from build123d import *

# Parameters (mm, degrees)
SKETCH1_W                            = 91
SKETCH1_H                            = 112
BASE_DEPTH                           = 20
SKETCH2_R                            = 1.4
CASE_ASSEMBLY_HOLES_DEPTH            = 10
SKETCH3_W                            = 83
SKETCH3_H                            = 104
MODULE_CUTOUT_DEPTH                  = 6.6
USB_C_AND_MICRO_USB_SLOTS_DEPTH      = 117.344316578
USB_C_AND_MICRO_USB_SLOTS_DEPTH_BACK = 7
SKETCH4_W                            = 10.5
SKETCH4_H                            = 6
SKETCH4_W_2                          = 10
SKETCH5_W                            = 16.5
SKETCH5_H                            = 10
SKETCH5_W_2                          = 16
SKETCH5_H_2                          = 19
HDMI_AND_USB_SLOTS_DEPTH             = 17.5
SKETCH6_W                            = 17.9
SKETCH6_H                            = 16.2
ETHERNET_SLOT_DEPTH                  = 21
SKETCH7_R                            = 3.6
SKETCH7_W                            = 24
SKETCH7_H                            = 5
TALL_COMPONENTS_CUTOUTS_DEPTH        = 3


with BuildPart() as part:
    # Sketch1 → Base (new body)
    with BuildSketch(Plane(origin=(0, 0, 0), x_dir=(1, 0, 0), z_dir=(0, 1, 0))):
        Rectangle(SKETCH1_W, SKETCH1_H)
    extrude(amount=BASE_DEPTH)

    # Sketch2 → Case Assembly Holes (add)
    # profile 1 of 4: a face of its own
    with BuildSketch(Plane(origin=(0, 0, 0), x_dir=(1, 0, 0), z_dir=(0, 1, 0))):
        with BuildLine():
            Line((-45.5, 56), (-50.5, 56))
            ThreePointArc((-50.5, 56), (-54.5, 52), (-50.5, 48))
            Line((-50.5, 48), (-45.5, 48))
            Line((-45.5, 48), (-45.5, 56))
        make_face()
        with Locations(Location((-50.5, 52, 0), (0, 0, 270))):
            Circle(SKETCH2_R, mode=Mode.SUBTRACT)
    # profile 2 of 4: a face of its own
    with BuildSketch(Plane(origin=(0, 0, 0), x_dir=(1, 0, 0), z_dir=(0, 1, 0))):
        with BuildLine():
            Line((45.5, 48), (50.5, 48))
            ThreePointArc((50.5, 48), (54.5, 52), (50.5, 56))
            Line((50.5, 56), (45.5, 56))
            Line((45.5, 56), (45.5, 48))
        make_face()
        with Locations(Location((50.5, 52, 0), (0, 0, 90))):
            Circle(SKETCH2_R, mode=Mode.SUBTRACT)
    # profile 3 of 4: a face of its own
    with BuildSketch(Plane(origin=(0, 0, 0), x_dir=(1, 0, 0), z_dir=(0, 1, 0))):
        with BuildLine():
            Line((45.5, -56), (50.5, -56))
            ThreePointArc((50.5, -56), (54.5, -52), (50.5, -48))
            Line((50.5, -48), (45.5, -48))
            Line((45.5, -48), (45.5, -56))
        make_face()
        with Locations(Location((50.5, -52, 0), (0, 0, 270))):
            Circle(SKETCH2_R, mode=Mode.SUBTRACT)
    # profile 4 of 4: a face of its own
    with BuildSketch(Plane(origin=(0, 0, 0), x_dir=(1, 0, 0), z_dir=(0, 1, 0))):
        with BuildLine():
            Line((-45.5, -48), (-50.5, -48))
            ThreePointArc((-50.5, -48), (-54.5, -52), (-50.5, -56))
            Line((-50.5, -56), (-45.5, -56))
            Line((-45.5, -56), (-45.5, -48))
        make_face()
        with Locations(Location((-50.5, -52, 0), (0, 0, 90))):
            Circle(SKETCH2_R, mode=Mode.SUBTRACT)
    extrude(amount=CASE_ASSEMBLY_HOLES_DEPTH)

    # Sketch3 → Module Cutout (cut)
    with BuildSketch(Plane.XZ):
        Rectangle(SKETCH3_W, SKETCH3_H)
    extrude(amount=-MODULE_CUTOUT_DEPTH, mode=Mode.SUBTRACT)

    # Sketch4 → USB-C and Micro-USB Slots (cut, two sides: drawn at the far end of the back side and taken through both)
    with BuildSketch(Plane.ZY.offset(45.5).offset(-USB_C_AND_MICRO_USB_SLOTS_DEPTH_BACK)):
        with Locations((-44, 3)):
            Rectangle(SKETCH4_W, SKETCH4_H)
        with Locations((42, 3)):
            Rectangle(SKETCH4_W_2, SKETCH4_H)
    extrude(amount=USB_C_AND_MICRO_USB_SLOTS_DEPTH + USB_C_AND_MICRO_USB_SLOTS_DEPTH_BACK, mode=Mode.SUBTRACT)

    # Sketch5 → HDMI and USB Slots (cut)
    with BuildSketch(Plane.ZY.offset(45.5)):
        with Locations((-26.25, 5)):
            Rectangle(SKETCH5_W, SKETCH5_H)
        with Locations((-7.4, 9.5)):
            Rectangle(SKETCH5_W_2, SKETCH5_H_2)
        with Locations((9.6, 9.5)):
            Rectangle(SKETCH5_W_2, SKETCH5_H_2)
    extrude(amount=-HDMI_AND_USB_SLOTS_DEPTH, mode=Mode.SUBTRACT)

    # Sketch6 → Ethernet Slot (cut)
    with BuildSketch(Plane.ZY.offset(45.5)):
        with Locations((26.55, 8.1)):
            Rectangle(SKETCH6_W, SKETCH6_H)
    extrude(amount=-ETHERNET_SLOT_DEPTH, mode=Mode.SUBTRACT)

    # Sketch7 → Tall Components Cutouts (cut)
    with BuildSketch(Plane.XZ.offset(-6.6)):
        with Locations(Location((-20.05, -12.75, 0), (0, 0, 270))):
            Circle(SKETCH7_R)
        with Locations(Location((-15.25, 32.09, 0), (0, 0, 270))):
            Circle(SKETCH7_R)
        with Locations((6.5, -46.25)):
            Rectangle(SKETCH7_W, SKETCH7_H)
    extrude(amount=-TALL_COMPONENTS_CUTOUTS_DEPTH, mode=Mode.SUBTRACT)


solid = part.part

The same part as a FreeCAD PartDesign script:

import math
import FreeCAD as App
import Part
import Sketcher
from FreeCAD import Vector


def add_polygon(sketch, points):
    """Adds a closed chain of lines whose ends are joined by coincident constraints."""
    first, n = sketch.GeometryCount, len(points)
    for a, b in zip(points, points[1:] + points[:1]):
        sketch.addGeometry(Part.LineSegment(App.Vector(*a, 0), App.Vector(*b, 0)), False)
    for i in range(n):
        sketch.addConstraint(Sketcher.Constraint("Coincident", first + i, 2, first + (i + 1) % n, 1))

doc = App.newDocument("Part")
body = doc.addObject("PartDesign::Body", "Body")

# Sketch on XZ plane
sketch1 = doc.addObject("Sketcher::SketchObject", "Sketch")
body.addObject(sketch1)
sketch1.AttachmentSupport = (doc.XZ_Plane, [""])
sketch1.MapMode = "FlatFace"
add_polygon(sketch1, [(-46, -56), (-46, 56), (46, 56), (46, -56)])  # lines 0-3
sketch1.addConstraint(Sketcher.Constraint("Vertical", 0))
sketch1.addConstraint(Sketcher.Constraint("Horizontal", 1))
sketch1.addConstraint(Sketcher.Constraint("Vertical", 2))
sketch1.addConstraint(Sketcher.Constraint("Horizontal", 3))
sketch1.addConstraint(Sketcher.Constraint("Symmetric", 0, 2, 2, 2, -1, 1))
sketch1.addConstraint(Sketcher.Constraint("DistanceX", 1, 1, 1, 2, 91.0))
sketch1.addConstraint(Sketcher.Constraint("DistanceY", 0, 1, 0, 2, 112.0))
pad1 = doc.addObject("PartDesign::Pad", "Pad")
body.addObject(pad1)
pad1.Profile = sketch1
pad1.Length = 20
pad1.Reversed = True

# Sketch on XZ plane
sketch2 = doc.addObject("Sketcher::SketchObject", "Sketch001")
body.addObject(sketch2)
sketch2.AttachmentSupport = (doc.XZ_Plane, [""])
sketch2.MapMode = "FlatFace"
sketch2.addGeometry(Part.LineSegment(Vector(-45.5, -56, 0), Vector(-50.5, -56, 0)), False)
sketch2.addGeometry(Part.ArcOfCircle(Part.Circle(Vector(-50.5, -52, 0), Vector(0, 0, 1), 4), math.radians(90), math.radians(270)), False)
sketch2.addGeometry(Part.LineSegment(Vector(-50.5, -48, 0), Vector(-45.5, -48, 0)), False)
sketch2.addGeometry(Part.LineSegment(Vector(-45.5, -48, 0), Vector(-45.5, -56, 0)), False)
sketch2.addGeometry(Part.Circle(Vector(-50.5, -52, 0), Vector(0, 0, 1), 1.4), False)
sketch2.addGeometry(Part.LineSegment(Vector(45.5, -48, 0), Vector(50.5, -48, 0)), False)
sketch2.addGeometry(Part.ArcOfCircle(Part.Circle(Vector(50.5, -52, 0), Vector(0, 0, 1), 4), math.radians(-90), math.radians(90)), False)
sketch2.addGeometry(Part.LineSegment(Vector(50.5, -56, 0), Vector(45.5, -56, 0)), False)
sketch2.addGeometry(Part.LineSegment(Vector(45.5, -56, 0), Vector(45.5, -48, 0)), False)
sketch2.addGeometry(Part.Circle(Vector(50.5, -52, 0), Vector(0, 0, 1), 1.4), False)
sketch2.addGeometry(Part.LineSegment(Vector(45.5, 56, 0), Vector(50.5, 56, 0)), False)
sketch2.addGeometry(Part.ArcOfCircle(Part.Circle(Vector(50.5, 52, 0), Vector(0, 0, 1), 4), math.radians(-90), math.radians(90)), False)
sketch2.addGeometry(Part.LineSegment(Vector(50.5, 48, 0), Vector(45.5, 48, 0)), False)
sketch2.addGeometry(Part.LineSegment(Vector(45.5, 48, 0), Vector(45.5, 56, 0)), False)
sketch2.addGeometry(Part.Circle(Vector(50.5, 52, 0), Vector(0, 0, 1), 1.4), False)
sketch2.addGeometry(Part.LineSegment(Vector(-45.5, 48, 0), Vector(-50.5, 48, 0)), False)
sketch2.addGeometry(Part.ArcOfCircle(Part.Circle(Vector(-50.5, 52, 0), Vector(0, 0, 1), 4), math.radians(90), math.radians(270)), False)
sketch2.addGeometry(Part.LineSegment(Vector(-50.5, 56, 0), Vector(-45.5, 56, 0)), False)
sketch2.addGeometry(Part.LineSegment(Vector(-45.5, 56, 0), Vector(-45.5, 48, 0)), False)
sketch2.addGeometry(Part.Circle(Vector(-50.5, 52, 0), Vector(0, 0, 1), 1.4), False)
sketch2.addConstraint(Sketcher.Constraint("Tangent", 0, 2, 1, 2))
sketch2.addConstraint(Sketcher.Constraint("Tangent", 1, 1, 2, 1))
sketch2.addConstraint(Sketcher.Constraint("Coincident", 2, 2, 3, 1))
sketch2.addConstraint(Sketcher.Constraint("Coincident", 3, 2, 0, 1))
sketch2.addConstraint(Sketcher.Constraint("Tangent", 5, 2, 6, 2))
sketch2.addConstraint(Sketcher.Constraint("Tangent", 6, 1, 7, 1))
sketch2.addConstraint(Sketcher.Constraint("Coincident", 7, 2, 8, 1))
sketch2.addConstraint(Sketcher.Constraint("Coincident", 8, 2, 5, 1))
sketch2.addConstraint(Sketcher.Constraint("Tangent", 10, 2, 11, 2))
sketch2.addConstraint(Sketcher.Constraint("Tangent", 11, 1, 12, 1))
sketch2.addConstraint(Sketcher.Constraint("Coincident", 12, 2, 13, 1))
sketch2.addConstraint(Sketcher.Constraint("Coincident", 13, 2, 10, 1))
sketch2.addConstraint(Sketcher.Constraint("Tangent", 15, 2, 16, 2))
sketch2.addConstraint(Sketcher.Constraint("Tangent", 16, 1, 17, 1))
sketch2.addConstraint(Sketcher.Constraint("Coincident", 17, 2, 18, 1))
sketch2.addConstraint(Sketcher.Constraint("Coincident", 18, 2, 15, 1))
sketch2.addConstraint(Sketcher.Constraint("Horizontal", 0))
sketch2.addConstraint(Sketcher.Constraint("Horizontal", 2))
sketch2.addConstraint(Sketcher.Constraint("Vertical", 3))
sketch2.addConstraint(Sketcher.Constraint("Horizontal", 5))
sketch2.addConstraint(Sketcher.Constraint("Horizontal", 7))
sketch2.addConstraint(Sketcher.Constraint("Vertical", 8))
sketch2.addConstraint(Sketcher.Constraint("Horizontal", 10))
sketch2.addConstraint(Sketcher.Constraint("Horizontal", 12))
sketch2.addConstraint(Sketcher.Constraint("Vertical", 13))
sketch2.addConstraint(Sketcher.Constraint("Horizontal", 15))
sketch2.addConstraint(Sketcher.Constraint("Horizontal", 17))
sketch2.addConstraint(Sketcher.Constraint("Vertical", 18))
sketch2.addConstraint(Sketcher.Constraint("Coincident", 4, 3, 1, 3))
sketch2.addConstraint(Sketcher.Constraint("Coincident", 9, 3, 6, 3))
sketch2.addConstraint(Sketcher.Constraint("Coincident", 14, 3, 11, 3))
sketch2.addConstraint(Sketcher.Constraint("Coincident", 19, 3, 16, 3))
sketch2.addConstraint(Sketcher.Constraint("Equal", 1, 6))
sketch2.addConstraint(Sketcher.Constraint("Equal", 4, 9))
sketch2.addConstraint(Sketcher.Constraint("Equal", 6, 11))
sketch2.addConstraint(Sketcher.Constraint("Equal", 9, 14))
sketch2.addConstraint(Sketcher.Constraint("Equal", 11, 16))
sketch2.addConstraint(Sketcher.Constraint("Equal", 14, 19))
sketch2.addConstraint(Sketcher.Constraint("Symmetric", 1, 3, 11, 3, -1, 1))
sketch2.addConstraint(Sketcher.Constraint("Symmetric", 6, 3, 16, 3, -1, 1))
sketch2.addConstraint(Sketcher.Constraint("Symmetric", 1, 3, 6, 3, -2))
sketch2.addConstraint(Sketcher.Constraint("Vertical", 8, 2, 12, 2))
sketch2.addConstraint(Sketcher.Constraint("Vertical", 3, 2, 17, 2))
sketch2.addConstraint(Sketcher.Constraint("Equal", 2, 5))
sketch2.addConstraint(Sketcher.Constraint("Radius", 1, 4.0))
sketch2.addConstraint(Sketcher.Constraint("Diameter", 4, 2.8))
sketch2.addConstraint(Sketcher.Constraint("DistanceX", 0, 2, 0, 1, 5.0))
sketch2.addConstraint(Sketcher.Constraint("DistanceY", 1, 3, -1, 1, 52.0))
sketch2.addConstraint(Sketcher.Constraint("DistanceX", 1, 3, 6, 3, 101.0))
pad2 = doc.addObject("PartDesign::Pad", "Pad001")
body.addObject(pad2)
pad2.Profile = sketch2
pad2.Length = 10
pad2.Reversed = True

# Sketch on XZ plane
sketch3 = doc.addObject("Sketcher::SketchObject", "Sketch002")
body.addObject(sketch3)
sketch3.AttachmentSupport = (doc.XZ_Plane, [""])
sketch3.MapMode = "FlatFace"
add_polygon(sketch3, [(-42, 52), (-42, -52), (42, -52), (42, 52)])  # lines 0-3
sketch3.addConstraint(Sketcher.Constraint("Vertical", 0))
sketch3.addConstraint(Sketcher.Constraint("Horizontal", 1))
sketch3.addConstraint(Sketcher.Constraint("Vertical", 2))
sketch3.addConstraint(Sketcher.Constraint("Horizontal", 3))
sketch3.addConstraint(Sketcher.Constraint("Symmetric", 0, 2, 2, 2, -1, 1))
sketch3.addConstraint(Sketcher.Constraint("DistanceX", 1, 1, 1, 2, 83.0))
sketch3.addConstraint(Sketcher.Constraint("DistanceY", 0, 2, 0, 1, 104.0))
pocket1 = doc.addObject("PartDesign::Pocket", "Pocket")
body.addObject(pocket1)
pocket1.Profile = sketch3
pocket1.Length = 6.6

# Sketch on YZ plane
sketch4 = doc.addObject("Sketcher::SketchObject", "Sketch003")
body.addObject(sketch4)
sketch4.AttachmentSupport = (doc.YZ_Plane, [""])
sketch4.MapMode = "FlatFace"
sketch4.AttachmentOffset = App.Placement(Vector(0, 0, -45.5), App.Rotation())
add_polygon(sketch4, [(6, -49), (0, -49), (0, -39), (6, -39)])  # lines 0-3
add_polygon(sketch4, [(6, 37), (0, 37), (0, 47), (6, 47)])  # lines 4-7
sketch4.addConstraint(Sketcher.Constraint("Horizontal", 0))
sketch4.addConstraint(Sketcher.Constraint("Vertical", 1))
sketch4.addConstraint(Sketcher.Constraint("Horizontal", 2))
sketch4.addConstraint(Sketcher.Constraint("Vertical", 3))
sketch4.addConstraint(Sketcher.Constraint("Horizontal", 4))
sketch4.addConstraint(Sketcher.Constraint("Vertical", 5))
sketch4.addConstraint(Sketcher.Constraint("Horizontal", 6))
sketch4.addConstraint(Sketcher.Constraint("Vertical", 7))
sketch4.addConstraint(Sketcher.Constraint("PointOnObject", 0, 2, -2))
sketch4.addConstraint(Sketcher.Constraint("PointOnObject", 4, 2, -2))
sketch4.addConstraint(Sketcher.Constraint("Vertical", 3, 2, 6, 2))
sketch4.addConstraint(Sketcher.Constraint("DistanceX", 0, 2, 0, 1, 6.0))
sketch4.addConstraint(Sketcher.Constraint("DistanceY", 5, 1, 5, 2, 10.0))
sketch4.addConstraint(Sketcher.Constraint("DistanceY", 1, 1, 1, 2, 10.5))
sketch4.addConstraint(Sketcher.Constraint("DistanceY", -1, 1, 4, 2, 37.0))
sketch4.addConstraint(Sketcher.Constraint("DistanceY", 0, 2, -1, 1, 49.25))
pocket2 = doc.addObject("PartDesign::Pocket", "Pocket001")
body.addObject(pocket2)
pocket2.Profile = sketch4
pocket2.Type = "TwoLengths"
pocket2.Length = 117.344317
pocket2.Length2 = 7

# Sketch on YZ plane
sketch5 = doc.addObject("Sketcher::SketchObject", "Sketch004")
body.addObject(sketch5)
sketch5.AttachmentSupport = (doc.YZ_Plane, [""])
sketch5.MapMode = "FlatFace"
sketch5.AttachmentOffset = App.Placement(Vector(0, 0, -45.5), App.Rotation())
add_polygon(sketch5, [(10, -34), (0, -34), (0, -18), (10, -18)])  # lines 0-3
add_polygon(sketch5, [(19, -15), (0, -15), (0, 1), (19, 1)])  # lines 4-7
add_polygon(sketch5, [(19, 2), (0, 2), (0, 18), (19, 18)])  # lines 8-11
sketch5.addConstraint(Sketcher.Constraint("Horizontal", 0))
sketch5.addConstraint(Sketcher.Constraint("Vertical", 1))
sketch5.addConstraint(Sketcher.Constraint("Horizontal", 2))
sketch5.addConstraint(Sketcher.Constraint("Vertical", 3))
sketch5.addConstraint(Sketcher.Constraint("Horizontal", 4))
sketch5.addConstraint(Sketcher.Constraint("Vertical", 5))
sketch5.addConstraint(Sketcher.Constraint("Horizontal", 6))
sketch5.addConstraint(Sketcher.Constraint("Vertical", 7))
sketch5.addConstraint(Sketcher.Constraint("Horizontal", 8))
sketch5.addConstraint(Sketcher.Constraint("Vertical", 9))
sketch5.addConstraint(Sketcher.Constraint("Horizontal", 10))
sketch5.addConstraint(Sketcher.Constraint("Vertical", 11))
sketch5.addConstraint(Sketcher.Constraint("PointOnObject", 0, 2, -2))
sketch5.addConstraint(Sketcher.Constraint("PointOnObject", 4, 2, -2))
sketch5.addConstraint(Sketcher.Constraint("PointOnObject", 8, 2, -2))
sketch5.addConstraint(Sketcher.Constraint("Vertical", 7, 2, 10, 2))
sketch5.addConstraint(Sketcher.Constraint("Equal", 7, 9))
sketch5.addConstraint(Sketcher.Constraint("DistanceX", 0, 2, 0, 1, 10.0))
sketch5.addConstraint(Sketcher.Constraint("DistanceX", 4, 2, 4, 1, 19.0))
sketch5.addConstraint(Sketcher.Constraint("DistanceY", 5, 1, 5, 2, 16.0))
sketch5.addConstraint(Sketcher.Constraint("DistanceY", 1, 1, 1, 2, 16.5))
sketch5.addConstraint(Sketcher.Constraint("DistanceY", 1, 2, -1, 1, 18.0))
sketch5.addConstraint(Sketcher.Constraint("DistanceY", 5, 2, 8, 2, 1.0))
sketch5.addConstraint(Sketcher.Constraint("DistanceY", 4, 2, -1, 1, 15.4))
pocket3 = doc.addObject("PartDesign::Pocket", "Pocket002")
body.addObject(pocket3)
pocket3.Profile = sketch5
pocket3.Length = 17.5
pocket3.Reversed = True

# Sketch on YZ plane
sketch6 = doc.addObject("Sketcher::SketchObject", "Sketch005")
body.addObject(sketch6)
sketch6.AttachmentSupport = (doc.YZ_Plane, [""])
sketch6.MapMode = "FlatFace"
sketch6.AttachmentOffset = App.Placement(Vector(0, 0, -45.5), App.Rotation())
add_polygon(sketch6, [(16, 18), (0, 18), (0, 36), (16, 36)])  # lines 0-3
sketch6.addConstraint(Sketcher.Constraint("Horizontal", 0))
sketch6.addConstraint(Sketcher.Constraint("Vertical", 1))
sketch6.addConstraint(Sketcher.Constraint("Horizontal", 2))
sketch6.addConstraint(Sketcher.Constraint("Vertical", 3))
sketch6.addConstraint(Sketcher.Constraint("PointOnObject", 0, 2, -2))
sketch6.addConstraint(Sketcher.Constraint("DistanceX", 0, 2, 0, 1, 16.2))
sketch6.addConstraint(Sketcher.Constraint("DistanceY", 1, 1, 1, 2, 17.9))
sketch6.addConstraint(Sketcher.Constraint("DistanceY", -1, 1, 0, 2, 17.6))
pocket4 = doc.addObject("PartDesign::Pocket", "Pocket003")
body.addObject(pocket4)
pocket4.Profile = sketch6
pocket4.Length = 21
pocket4.Reversed = True

# Sketch on XZ plane
sketch7 = doc.addObject("Sketcher::SketchObject", "Sketch006")
body.addObject(sketch7)
sketch7.AttachmentSupport = (doc.XZ_Plane, [""])
sketch7.MapMode = "FlatFace"
sketch7.AttachmentOffset = App.Placement(Vector(0, 0, -6.6), App.Rotation())
sketch7.addGeometry(Part.Circle(Vector(-20.1, -12.8, 0), Vector(0, 0, 1), 3.6), False)  # 0
sketch7.addGeometry(Part.Circle(Vector(-15.2, 32.1, 0), Vector(0, 0, 1), 3.6), False)  # 1
add_polygon(sketch7, [(-5.5, -43.8), (-5.5, -48.8), (18.5, -48.8), (18.5, -43.8)])  # lines 2-5
sketch7.addConstraint(Sketcher.Constraint("Vertical", 2))
sketch7.addConstraint(Sketcher.Constraint("Horizontal", 3))
sketch7.addConstraint(Sketcher.Constraint("Vertical", 4))
sketch7.addConstraint(Sketcher.Constraint("Horizontal", 5))
sketch7.addConstraint(Sketcher.Constraint("Equal", 0, 1))
sketch7.addConstraint(Sketcher.Constraint("Diameter", 0, 7.2))
sketch7.addConstraint(Sketcher.Constraint("DistanceX", 3, 1, 3, 2, 24.0))
sketch7.addConstraint(Sketcher.Constraint("DistanceY", 2, 2, 2, 1, 5.0))
sketch7.addConstraint(Sketcher.Constraint("DistanceY", 2, 2, 0, 3, 36.0))
sketch7.addConstraint(Sketcher.Constraint("DistanceX", 2, 2, -1, 1, 5.5))
sketch7.addConstraint(Sketcher.Constraint("DistanceX", 0, 3, 1, 3, 4.8))
sketch7.addConstraint(Sketcher.Constraint("DistanceX", 0, 3, -1, 1, 20.05))
sketch7.addConstraint(Sketcher.Constraint("DistanceY", 0, 3, -1, 1, 12.75))
sketch7.addConstraint(Sketcher.Constraint("DistanceY", -1, 1, 1, 3, 32.09))
pocket5 = doc.addObject("PartDesign::Pocket", "Pocket004")
body.addObject(pocket5)
pocket5.Profile = sketch7
pocket5.Length = 3

doc.recompute()
